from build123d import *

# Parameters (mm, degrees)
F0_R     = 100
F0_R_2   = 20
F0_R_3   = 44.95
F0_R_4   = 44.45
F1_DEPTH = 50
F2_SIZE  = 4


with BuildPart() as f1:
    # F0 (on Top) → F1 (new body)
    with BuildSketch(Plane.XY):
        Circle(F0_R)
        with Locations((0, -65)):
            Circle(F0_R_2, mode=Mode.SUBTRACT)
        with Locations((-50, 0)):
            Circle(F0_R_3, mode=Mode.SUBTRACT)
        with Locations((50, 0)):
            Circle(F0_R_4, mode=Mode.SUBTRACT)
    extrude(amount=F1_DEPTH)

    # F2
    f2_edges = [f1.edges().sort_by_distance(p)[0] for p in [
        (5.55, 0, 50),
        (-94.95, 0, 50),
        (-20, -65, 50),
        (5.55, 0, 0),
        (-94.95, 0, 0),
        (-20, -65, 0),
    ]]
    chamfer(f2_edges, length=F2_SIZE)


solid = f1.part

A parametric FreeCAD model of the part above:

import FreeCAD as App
import Part
import Sketcher


def edges_at(feature, points):
    """Names of the edges that pass closest to the given points."""
    edges = feature.Shape.Edges
    near = lambda p: min(range(len(edges)), key=lambda i: edges[i].distToShape(Part.Vertex(*p))[0])
    return sorted({f"Edge{near(p) + 1}" for p in points})

doc = App.newDocument("Part")
body = doc.addObject("PartDesign::Body", "Body")

# Sketch on XY plane
sketch1 = body.newObject("Sketcher::SketchObject", "Sketch")
sketch1.AttachmentSupport = (doc.getObject("XY_Plane"), [""])
sketch1.MapMode = "FlatFace"
sketch1.addGeometry([
    Part.Circle(App.Vector(0, 0, 0), App.Vector(0, 0, 1), 100),
    Part.Circle(App.Vector(0, -65, 0), App.Vector(0, 0, 1), 20),
    Part.Circle(App.Vector(-50, 0, 0), App.Vector(0, 0, 1), 44.95),
    Part.Circle(App.Vector(50, 0, 0), App.Vector(0, 0, 1), 44.45),
], False)
sketch1.addConstraint([
    Sketcher.Constraint("Coincident", 0, 3, -1, 1),
    Sketcher.Constraint("Symmetric", 2, 3, 3, 3, -1, 1),
    Sketcher.Constraint("PointOnObject", 1, 3, -2),
    Sketcher.Constraint("PointOnObject", 2, 3, -1),
    Sketcher.Constraint("Diameter", 0, 200.0),
    Sketcher.Constraint("Diameter", 1, 40.0),
    Sketcher.Constraint("Diameter", 2, 89.9),
    Sketcher.Constraint("Diameter", 3, 88.9),
    Sketcher.Constraint("DistanceY", 1, 3, -1, 1, 65.0),
    Sketcher.Constraint("DistanceX", 2, 3, -1, 1, 50.0),
])
pad1 = body.newObject("PartDesign::Pad", "Pad")
pad1.Profile = sketch1
pad1.Length = 50
doc.recompute()

chamfer = body.newObject("PartDesign::Chamfer", "Chamfer")
chamfer.Base = (pad1, edges_at(pad1, [
    (5.55, 0, 50),
    (-94.95, 0, 50),
    (-20, -65, 50),
    (5.55, 0, 0),
    (-94.95, 0, 0),
    (-20, -65, 0),
]))
chamfer.Size = 4

doc.recompute()
